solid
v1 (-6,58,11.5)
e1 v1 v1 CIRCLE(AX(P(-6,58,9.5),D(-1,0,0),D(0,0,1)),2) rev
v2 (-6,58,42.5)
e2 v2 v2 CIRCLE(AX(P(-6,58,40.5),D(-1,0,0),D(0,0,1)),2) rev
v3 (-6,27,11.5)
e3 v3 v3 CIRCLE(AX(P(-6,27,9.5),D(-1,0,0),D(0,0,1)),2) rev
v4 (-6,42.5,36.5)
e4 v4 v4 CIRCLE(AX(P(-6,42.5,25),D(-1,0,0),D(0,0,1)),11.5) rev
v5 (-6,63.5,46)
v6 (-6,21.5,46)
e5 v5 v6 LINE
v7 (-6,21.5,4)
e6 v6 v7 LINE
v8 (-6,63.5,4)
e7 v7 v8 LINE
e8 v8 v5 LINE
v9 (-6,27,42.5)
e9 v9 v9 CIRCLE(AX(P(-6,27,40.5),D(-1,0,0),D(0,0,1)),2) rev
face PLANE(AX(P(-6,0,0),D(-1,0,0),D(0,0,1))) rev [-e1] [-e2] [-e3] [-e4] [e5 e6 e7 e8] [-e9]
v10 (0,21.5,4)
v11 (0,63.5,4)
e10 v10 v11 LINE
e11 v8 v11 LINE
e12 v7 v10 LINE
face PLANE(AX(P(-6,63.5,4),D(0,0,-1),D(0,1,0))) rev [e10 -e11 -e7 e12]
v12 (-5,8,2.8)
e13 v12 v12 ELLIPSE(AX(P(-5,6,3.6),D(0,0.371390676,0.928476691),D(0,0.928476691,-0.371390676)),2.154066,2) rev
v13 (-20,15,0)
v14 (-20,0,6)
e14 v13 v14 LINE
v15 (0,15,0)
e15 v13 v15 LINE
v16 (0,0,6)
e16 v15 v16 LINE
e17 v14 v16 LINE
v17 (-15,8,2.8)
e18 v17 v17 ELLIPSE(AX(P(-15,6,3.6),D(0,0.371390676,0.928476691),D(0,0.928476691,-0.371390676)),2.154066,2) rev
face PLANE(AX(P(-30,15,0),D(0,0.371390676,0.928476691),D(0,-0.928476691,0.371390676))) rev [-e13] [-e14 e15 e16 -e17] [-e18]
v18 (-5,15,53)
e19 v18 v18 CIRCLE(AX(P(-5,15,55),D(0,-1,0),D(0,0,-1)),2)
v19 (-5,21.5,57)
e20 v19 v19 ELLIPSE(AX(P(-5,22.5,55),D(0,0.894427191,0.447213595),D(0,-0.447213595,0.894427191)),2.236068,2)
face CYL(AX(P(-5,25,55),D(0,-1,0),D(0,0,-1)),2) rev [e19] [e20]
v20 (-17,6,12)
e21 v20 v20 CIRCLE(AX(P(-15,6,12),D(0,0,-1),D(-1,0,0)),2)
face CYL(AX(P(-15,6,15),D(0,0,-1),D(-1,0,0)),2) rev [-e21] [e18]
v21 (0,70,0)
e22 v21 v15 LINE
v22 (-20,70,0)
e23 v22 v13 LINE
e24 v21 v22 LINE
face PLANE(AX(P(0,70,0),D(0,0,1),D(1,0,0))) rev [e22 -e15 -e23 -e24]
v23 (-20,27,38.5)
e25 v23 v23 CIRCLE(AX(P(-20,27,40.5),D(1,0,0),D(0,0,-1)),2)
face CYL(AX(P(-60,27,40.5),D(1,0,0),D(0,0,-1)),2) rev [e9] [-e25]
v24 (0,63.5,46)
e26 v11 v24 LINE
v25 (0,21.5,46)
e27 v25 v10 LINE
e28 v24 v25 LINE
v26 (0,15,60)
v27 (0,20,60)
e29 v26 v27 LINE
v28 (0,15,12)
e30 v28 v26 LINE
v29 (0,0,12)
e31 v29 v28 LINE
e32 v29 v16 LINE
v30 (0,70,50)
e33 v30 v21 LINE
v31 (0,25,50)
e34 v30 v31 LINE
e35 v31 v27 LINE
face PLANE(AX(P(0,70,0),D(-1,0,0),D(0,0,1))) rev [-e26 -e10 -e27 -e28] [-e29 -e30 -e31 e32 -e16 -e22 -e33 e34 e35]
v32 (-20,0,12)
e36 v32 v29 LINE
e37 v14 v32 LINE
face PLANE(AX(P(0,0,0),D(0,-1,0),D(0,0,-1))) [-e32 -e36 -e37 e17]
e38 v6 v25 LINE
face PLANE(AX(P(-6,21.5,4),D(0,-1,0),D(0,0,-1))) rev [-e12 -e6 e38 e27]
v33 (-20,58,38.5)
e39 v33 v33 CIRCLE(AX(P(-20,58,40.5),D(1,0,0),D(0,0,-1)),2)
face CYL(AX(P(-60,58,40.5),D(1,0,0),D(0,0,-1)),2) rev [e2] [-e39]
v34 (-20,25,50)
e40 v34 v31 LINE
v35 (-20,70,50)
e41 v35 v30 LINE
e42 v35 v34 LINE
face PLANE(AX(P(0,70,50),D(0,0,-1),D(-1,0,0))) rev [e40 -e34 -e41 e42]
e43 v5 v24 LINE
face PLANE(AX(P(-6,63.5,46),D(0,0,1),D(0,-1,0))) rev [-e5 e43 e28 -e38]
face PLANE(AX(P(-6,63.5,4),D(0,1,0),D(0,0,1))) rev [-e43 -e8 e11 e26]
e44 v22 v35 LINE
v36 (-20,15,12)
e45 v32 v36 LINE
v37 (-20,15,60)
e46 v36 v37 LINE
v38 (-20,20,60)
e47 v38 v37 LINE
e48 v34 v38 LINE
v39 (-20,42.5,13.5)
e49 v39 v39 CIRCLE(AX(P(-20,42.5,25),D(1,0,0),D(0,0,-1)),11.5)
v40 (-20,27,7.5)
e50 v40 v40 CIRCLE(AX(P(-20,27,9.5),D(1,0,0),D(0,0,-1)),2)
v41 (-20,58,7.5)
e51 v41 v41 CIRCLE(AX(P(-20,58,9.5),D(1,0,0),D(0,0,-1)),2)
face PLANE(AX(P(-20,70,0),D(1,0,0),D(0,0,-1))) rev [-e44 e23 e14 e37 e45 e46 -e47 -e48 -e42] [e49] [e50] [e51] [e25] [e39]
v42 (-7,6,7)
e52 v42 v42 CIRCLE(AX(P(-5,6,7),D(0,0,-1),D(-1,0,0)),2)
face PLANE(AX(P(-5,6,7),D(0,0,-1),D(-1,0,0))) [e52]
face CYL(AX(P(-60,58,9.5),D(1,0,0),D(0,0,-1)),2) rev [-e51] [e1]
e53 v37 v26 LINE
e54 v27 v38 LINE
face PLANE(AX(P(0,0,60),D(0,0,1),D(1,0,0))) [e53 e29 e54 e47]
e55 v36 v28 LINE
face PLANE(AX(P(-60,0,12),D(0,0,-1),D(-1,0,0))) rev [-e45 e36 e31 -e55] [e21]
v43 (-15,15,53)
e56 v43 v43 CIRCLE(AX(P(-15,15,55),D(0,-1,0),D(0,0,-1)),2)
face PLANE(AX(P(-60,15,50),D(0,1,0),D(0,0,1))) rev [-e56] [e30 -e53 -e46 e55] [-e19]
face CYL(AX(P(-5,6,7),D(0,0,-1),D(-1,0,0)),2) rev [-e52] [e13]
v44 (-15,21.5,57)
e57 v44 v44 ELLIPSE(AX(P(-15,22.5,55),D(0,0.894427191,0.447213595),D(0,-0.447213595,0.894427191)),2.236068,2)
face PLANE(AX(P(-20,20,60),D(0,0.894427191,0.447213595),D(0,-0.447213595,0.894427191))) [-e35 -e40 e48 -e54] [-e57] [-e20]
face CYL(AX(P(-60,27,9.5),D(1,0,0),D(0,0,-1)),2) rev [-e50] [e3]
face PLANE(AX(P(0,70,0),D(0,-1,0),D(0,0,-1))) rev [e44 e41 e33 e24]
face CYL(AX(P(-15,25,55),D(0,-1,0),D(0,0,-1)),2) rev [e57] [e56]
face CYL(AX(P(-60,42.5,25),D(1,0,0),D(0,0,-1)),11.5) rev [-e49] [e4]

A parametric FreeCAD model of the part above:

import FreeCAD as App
import Part
import Sketcher

V = App.Vector
Q = App.Units.Quantity


def add_polygon(sketch, points):
    """Adds a closed chain of lines whose ends are joined by coincident constraints."""
    first, n = sketch.GeometryCount, len(points)
    for a, b in zip(points, points[1:] + points[:1]):
        sketch.addGeometry(Part.LineSegment(App.Vector(*a, 0), App.Vector(*b, 0)), False)
    for i in range(n):
        sketch.addConstraint(Sketcher.Constraint("Coincident", first + i, 2, first + (i + 1) % n, 1))

doc = App.newDocument("Part")
body = doc.addObject("PartDesign::Body", "Body")

sketch1 = body.newObject("Sketcher::SketchObject", "Sketch")
sketch1.AttachmentSupport = (doc.getObject("XZ_Plane"), [""])
sketch1.MapMode = "FlatFace"
add_polygon(sketch1, [(-20, 0), (-20, 50), (0, 50), (0, 0)])
sketch1.addConstraint([
    Sketcher.Constraint("Vertical", 0),
    Sketcher.Constraint("Horizontal", 1),
    Sketcher.Constraint("Vertical", 2),
    Sketcher.Constraint("Horizontal", 3),
    Sketcher.Constraint("Coincident", 2, 2, -1, 1),
    Sketcher.Constraint("DistanceX", 1, 1, 1, 2, Q("20 mm")),
    Sketcher.Constraint("DistanceY", 0, 1, 0, 2, Q("50 mm")),
])
pad1 = body.newObject("PartDesign::Pad", "Pad")
pad1.Profile = sketch1
pad1.Length = 70
pad1.Reversed = True

sketch2 = body.newObject("Sketcher::SketchObject", "Sketch001")
sketch2.AttachmentSupport = (doc.getObject("YZ_Plane"), [""])
sketch2.MapMode = "FlatFace"
sketch2.addGeometry([
    Part.Circle(V(58, 9.5, 0), V(0, 0, 1), 2),
    Part.Circle(V(42.5, 25, 0), V(0, 0, 1), 11.5),
    Part.Circle(V(27, 9.5, 0), V(0, 0, 1), 2),
    Part.Circle(V(27, 40.5, 0), V(0, 0, 1), 2),
    Part.Circle(V(58, 40.5, 0), V(0, 0, 1), 2),
], False)
sketch2.addConstraint([
    Sketcher.Constraint("Equal", 0, 2),
    Sketcher.Constraint("Equal", 2, 3),
    Sketcher.Constraint("Equal", 3, 4),
    Sketcher.Constraint("Horizontal", 0, 3, 2, 3),
    Sketcher.Constraint("Horizontal", 3, 3, 4, 3),
    Sketcher.Constraint("Vertical", 2, 3, 3, 3),
    Sketcher.Constraint("Vertical", 0, 3, 4, 3),
    Sketcher.Constraint("Diameter", 0, Q("4 mm")),
    Sketcher.Constraint("Diameter", 1, Q("23 mm")),
    Sketcher.Constraint("DistanceX", -1, 1, 0, 3, Q("58 mm")),
    Sketcher.Constraint("DistanceY", -1, 1, 1, 3, Q("25 mm")),
    Sketcher.Constraint("DistanceX", -1, 1, 2, 3, Q("27 mm")),
    Sketcher.Constraint("DistanceY", 2, 3, 3, 3, Q("31 mm")),
    Sketcher.Constraint("DistanceY", -1, 1, 0, 3, Q("9.5 mm")),
    Sketcher.Constraint("DistanceX", -1, 1, 1, 3, Q("42.5 mm")),
])
pocket1 = body.newObject("PartDesign::Pocket", "Pocket")
pocket1.Profile = sketch2
pocket1.Length = 60

sketch3 = body.newObject("Sketcher::SketchObject", "Sketch002")
sketch3.AttachmentSupport = (doc.getObject("YZ_Plane"), [""])
sketch3.MapMode = "FlatFace"
add_polygon(sketch3, [(15, 50), (0, 50), (0, 12), (15, 12)])
sketch3.addConstraint([
    Sketcher.Constraint("Horizontal", 0),
    Sketcher.Constraint("Vertical", 1),
    Sketcher.Constraint("Horizontal", 2),
    Sketcher.Constraint("Vertical", 3),
    Sketcher.Constraint("PointOnObject", 0, 2, -2),
    Sketcher.Constraint("DistanceX", 0, 2, 0, 1, Q("15 mm")),
    Sketcher.Constraint("DistanceY", 1, 2, 1, 1, Q("38 mm")),
    Sketcher.Constraint("DistanceY", -1, 1, 0, 2, Q("50 mm")),
])
pocket2 = body.newObject("PartDesign::Pocket", "Pocket001")
pocket2.Profile = sketch3
pocket2.Length = 60

sketch4 = body.newObject("Sketcher::SketchObject", "Sketch003")
sketch4.AttachmentSupport = (doc.getObject("XY_Plane"), [""])
sketch4.MapMode = "FlatFace"
sketch4.addGeometry(Part.Circle(V(-15, 6, 0), V(0, 0, 1), 2), False)
sketch4.addConstraint([
    Sketcher.Constraint("Diameter", 0, Q("4 mm")),
    Sketcher.Constraint("DistanceX", 0, 3, -1, 1, Q("15 mm")),
    Sketcher.Constraint("DistanceY", -1, 1, 0, 3, Q("6 mm")),
])
pocket3 = body.newObject("PartDesign::Pocket", "Pocket002")
pocket3.Profile = sketch4
pocket3.Length = 15
pocket3.Reversed = True

sketch5 = body.newObject("Sketcher::SketchObject", "Sketch004")
sketch5.AttachmentSupport = (doc.getObject("YZ_Plane"), [""])
sketch5.MapMode = "FlatFace"
add_polygon(sketch5, [(64, 46), (22, 46), (22, 4), (64, 4)])
sketch5.addConstraint([
    Sketcher.Constraint("Horizontal", 0),
    Sketcher.Constraint("Vertical", 1),
    Sketcher.Constraint("Horizontal", 2),
    Sketcher.Constraint("Vertical", 3),
    Sketcher.Constraint("Equal", 2, 1),
    Sketcher.Constraint("DistanceX", 0, 2, 0, 1, Q("42 mm")),
    Sketcher.Constraint("DistanceY", -1, 1, 0, 2, Q("46 mm")),
    Sketcher.Constraint("DistanceX", -1, 1, 0, 2, Q("21.5 mm")),
])
pocket4 = body.newObject("PartDesign::Pocket", "Pocket003")
pocket4.Profile = sketch5
pocket4.Length = 6

sketch6 = body.newObject("Sketcher::SketchObject", "Sketch005")
sketch6.AttachmentSupport = (doc.getObject("XY_Plane"), [""])
sketch6.MapMode = "FlatFace"
sketch6.addGeometry(Part.Circle(V(-5, 6, 0), V(0, 0, 1), 2), False)
sketch6.addConstraint([
    Sketcher.Constraint("Diameter", 0, Q("4 mm")),
    Sketcher.Constraint("DistanceX", 0, 3, -1, 1, Q("5 mm")),
    Sketcher.Constraint("DistanceY", -1, 1, 0, 3, Q("6 mm")),
])
pocket5 = body.newObject("PartDesign::Pocket", "Pocket004")
pocket5.Profile = sketch6
pocket5.Length = 7
pocket5.Reversed = True

sketch7 = body.newObject("Sketcher::SketchObject", "Sketch006")
sketch7.AttachmentSupport = (doc.getObject("YZ_Plane"), [""])
sketch7.MapMode = "FlatFace"
add_polygon(sketch7, [(0, 6), (0, 0), (15, 0)])
sketch7.addConstraint([
    Sketcher.Constraint("Vertical", 0),
    Sketcher.Constraint("Horizontal", 1),
    Sketcher.Constraint("Coincident", 0, 2, -1, 1),
    Sketcher.Constraint("DistanceX", 1, 1, 1, 2, Q("15 mm")),
    Sketcher.Constraint("DistanceY", 0, 2, 0, 1, Q("6 mm")),
])
pocket6 = body.newObject("PartDesign::Pocket", "Pocket005")
pocket6.Profile = sketch7
pocket6.Length = 30

sketch8 = body.newObject("Sketcher::SketchObject", "Sketch007")
sketch8.AttachmentSupport = (doc.getObject("XY_Plane"), [""])
sketch8.MapMode = "FlatFace"
sketch8.AttachmentOffset = App.Placement(V(0, 0, 50), App.Rotation())
add_polygon(sketch8, [(-20, 20), (-20, 15), (0, 15), (0, 20)])
sketch8.addConstraint([
    Sketcher.Constraint("Vertical", 0),
    Sketcher.Constraint("Horizontal", 1),
    Sketcher.Constraint("Vertical", 2),
    Sketcher.Constraint("Horizontal", 3),
    Sketcher.Constraint("PointOnObject", 1, 2, -2),
    Sketcher.Constraint("DistanceX", 1, 1, 1, 2, Q("20 mm")),
    Sketcher.Constraint("DistanceY", 0, 2, 0, 1, Q("5 mm")),
    Sketcher.Constraint("DistanceY", -1, 1, 0, 2, Q("15 mm")),
])
pad2 = body.newObject("PartDesign::Pad", "Pad001")
pad2.Profile = sketch8
pad2.Length = 10

sketch9 = body.newObject("Sketcher::SketchObject", "Sketch008")
sketch9.AttachmentSupport = (doc.getObject("YZ_Plane"), [""])
sketch9.MapMode = "FlatFace"
add_polygon(sketch9, [(20, 60), (20, 50), (25, 50)])
sketch9.addConstraint([
    Sketcher.Constraint("Vertical", 0),
    Sketcher.Constraint("Horizontal", 1),
    Sketcher.Constraint("DistanceX", 1, 1, 1, 2, Q("5 mm")),
    Sketcher.Constraint("DistanceY", 0, 2, 0, 1, Q("10 mm")),
    Sketcher.Constraint("DistanceX", -1, 1, 0, 2, Q("20 mm")),
    Sketcher.Constraint("DistanceY", -1, 1, 0, 2, Q("50 mm")),
])
pad3 = body.newObject("PartDesign::Pad", "Pad002")
pad3.Profile = sketch9
pad3.Length = 20
pad3.Reversed = True

sketch10 = body.newObject("Sketcher::SketchObject", "Sketch009")
sketch10.AttachmentSupport = (doc.getObject("XZ_Plane"), [""])
sketch10.MapMode = "FlatFace"
sketch10.AttachmentOffset = App.Placement(V(0, 0, -15), App.Rotation())
sketch10.addGeometry([
    Part.Circle(V(-5, 55, 0), V(0, 0, 1), 2),
    Part.Circle(V(-15, 55, 0), V(0, 0, 1), 2),
], False)
sketch10.addConstraint([
    Sketcher.Constraint("Equal", 0, 1),
    Sketcher.Constraint("Horizontal", 0, 3, 1, 3),
    Sketcher.Constraint("Diameter", 0, Q("4 mm")),
    Sketcher.Constraint("DistanceX", 0, 3, -1, 1, Q("5 mm")),
    Sketcher.Constraint("DistanceY", -1, 1, 0, 3, Q("55 mm")),
    Sketcher.Constraint("DistanceX", 1, 3, -1, 1, Q("15 mm")),
])
pocket7 = body.newObject("PartDesign::Pocket", "Pocket006")
pocket7.Profile = sketch10
pocket7.Length = 10

doc.recompute()
